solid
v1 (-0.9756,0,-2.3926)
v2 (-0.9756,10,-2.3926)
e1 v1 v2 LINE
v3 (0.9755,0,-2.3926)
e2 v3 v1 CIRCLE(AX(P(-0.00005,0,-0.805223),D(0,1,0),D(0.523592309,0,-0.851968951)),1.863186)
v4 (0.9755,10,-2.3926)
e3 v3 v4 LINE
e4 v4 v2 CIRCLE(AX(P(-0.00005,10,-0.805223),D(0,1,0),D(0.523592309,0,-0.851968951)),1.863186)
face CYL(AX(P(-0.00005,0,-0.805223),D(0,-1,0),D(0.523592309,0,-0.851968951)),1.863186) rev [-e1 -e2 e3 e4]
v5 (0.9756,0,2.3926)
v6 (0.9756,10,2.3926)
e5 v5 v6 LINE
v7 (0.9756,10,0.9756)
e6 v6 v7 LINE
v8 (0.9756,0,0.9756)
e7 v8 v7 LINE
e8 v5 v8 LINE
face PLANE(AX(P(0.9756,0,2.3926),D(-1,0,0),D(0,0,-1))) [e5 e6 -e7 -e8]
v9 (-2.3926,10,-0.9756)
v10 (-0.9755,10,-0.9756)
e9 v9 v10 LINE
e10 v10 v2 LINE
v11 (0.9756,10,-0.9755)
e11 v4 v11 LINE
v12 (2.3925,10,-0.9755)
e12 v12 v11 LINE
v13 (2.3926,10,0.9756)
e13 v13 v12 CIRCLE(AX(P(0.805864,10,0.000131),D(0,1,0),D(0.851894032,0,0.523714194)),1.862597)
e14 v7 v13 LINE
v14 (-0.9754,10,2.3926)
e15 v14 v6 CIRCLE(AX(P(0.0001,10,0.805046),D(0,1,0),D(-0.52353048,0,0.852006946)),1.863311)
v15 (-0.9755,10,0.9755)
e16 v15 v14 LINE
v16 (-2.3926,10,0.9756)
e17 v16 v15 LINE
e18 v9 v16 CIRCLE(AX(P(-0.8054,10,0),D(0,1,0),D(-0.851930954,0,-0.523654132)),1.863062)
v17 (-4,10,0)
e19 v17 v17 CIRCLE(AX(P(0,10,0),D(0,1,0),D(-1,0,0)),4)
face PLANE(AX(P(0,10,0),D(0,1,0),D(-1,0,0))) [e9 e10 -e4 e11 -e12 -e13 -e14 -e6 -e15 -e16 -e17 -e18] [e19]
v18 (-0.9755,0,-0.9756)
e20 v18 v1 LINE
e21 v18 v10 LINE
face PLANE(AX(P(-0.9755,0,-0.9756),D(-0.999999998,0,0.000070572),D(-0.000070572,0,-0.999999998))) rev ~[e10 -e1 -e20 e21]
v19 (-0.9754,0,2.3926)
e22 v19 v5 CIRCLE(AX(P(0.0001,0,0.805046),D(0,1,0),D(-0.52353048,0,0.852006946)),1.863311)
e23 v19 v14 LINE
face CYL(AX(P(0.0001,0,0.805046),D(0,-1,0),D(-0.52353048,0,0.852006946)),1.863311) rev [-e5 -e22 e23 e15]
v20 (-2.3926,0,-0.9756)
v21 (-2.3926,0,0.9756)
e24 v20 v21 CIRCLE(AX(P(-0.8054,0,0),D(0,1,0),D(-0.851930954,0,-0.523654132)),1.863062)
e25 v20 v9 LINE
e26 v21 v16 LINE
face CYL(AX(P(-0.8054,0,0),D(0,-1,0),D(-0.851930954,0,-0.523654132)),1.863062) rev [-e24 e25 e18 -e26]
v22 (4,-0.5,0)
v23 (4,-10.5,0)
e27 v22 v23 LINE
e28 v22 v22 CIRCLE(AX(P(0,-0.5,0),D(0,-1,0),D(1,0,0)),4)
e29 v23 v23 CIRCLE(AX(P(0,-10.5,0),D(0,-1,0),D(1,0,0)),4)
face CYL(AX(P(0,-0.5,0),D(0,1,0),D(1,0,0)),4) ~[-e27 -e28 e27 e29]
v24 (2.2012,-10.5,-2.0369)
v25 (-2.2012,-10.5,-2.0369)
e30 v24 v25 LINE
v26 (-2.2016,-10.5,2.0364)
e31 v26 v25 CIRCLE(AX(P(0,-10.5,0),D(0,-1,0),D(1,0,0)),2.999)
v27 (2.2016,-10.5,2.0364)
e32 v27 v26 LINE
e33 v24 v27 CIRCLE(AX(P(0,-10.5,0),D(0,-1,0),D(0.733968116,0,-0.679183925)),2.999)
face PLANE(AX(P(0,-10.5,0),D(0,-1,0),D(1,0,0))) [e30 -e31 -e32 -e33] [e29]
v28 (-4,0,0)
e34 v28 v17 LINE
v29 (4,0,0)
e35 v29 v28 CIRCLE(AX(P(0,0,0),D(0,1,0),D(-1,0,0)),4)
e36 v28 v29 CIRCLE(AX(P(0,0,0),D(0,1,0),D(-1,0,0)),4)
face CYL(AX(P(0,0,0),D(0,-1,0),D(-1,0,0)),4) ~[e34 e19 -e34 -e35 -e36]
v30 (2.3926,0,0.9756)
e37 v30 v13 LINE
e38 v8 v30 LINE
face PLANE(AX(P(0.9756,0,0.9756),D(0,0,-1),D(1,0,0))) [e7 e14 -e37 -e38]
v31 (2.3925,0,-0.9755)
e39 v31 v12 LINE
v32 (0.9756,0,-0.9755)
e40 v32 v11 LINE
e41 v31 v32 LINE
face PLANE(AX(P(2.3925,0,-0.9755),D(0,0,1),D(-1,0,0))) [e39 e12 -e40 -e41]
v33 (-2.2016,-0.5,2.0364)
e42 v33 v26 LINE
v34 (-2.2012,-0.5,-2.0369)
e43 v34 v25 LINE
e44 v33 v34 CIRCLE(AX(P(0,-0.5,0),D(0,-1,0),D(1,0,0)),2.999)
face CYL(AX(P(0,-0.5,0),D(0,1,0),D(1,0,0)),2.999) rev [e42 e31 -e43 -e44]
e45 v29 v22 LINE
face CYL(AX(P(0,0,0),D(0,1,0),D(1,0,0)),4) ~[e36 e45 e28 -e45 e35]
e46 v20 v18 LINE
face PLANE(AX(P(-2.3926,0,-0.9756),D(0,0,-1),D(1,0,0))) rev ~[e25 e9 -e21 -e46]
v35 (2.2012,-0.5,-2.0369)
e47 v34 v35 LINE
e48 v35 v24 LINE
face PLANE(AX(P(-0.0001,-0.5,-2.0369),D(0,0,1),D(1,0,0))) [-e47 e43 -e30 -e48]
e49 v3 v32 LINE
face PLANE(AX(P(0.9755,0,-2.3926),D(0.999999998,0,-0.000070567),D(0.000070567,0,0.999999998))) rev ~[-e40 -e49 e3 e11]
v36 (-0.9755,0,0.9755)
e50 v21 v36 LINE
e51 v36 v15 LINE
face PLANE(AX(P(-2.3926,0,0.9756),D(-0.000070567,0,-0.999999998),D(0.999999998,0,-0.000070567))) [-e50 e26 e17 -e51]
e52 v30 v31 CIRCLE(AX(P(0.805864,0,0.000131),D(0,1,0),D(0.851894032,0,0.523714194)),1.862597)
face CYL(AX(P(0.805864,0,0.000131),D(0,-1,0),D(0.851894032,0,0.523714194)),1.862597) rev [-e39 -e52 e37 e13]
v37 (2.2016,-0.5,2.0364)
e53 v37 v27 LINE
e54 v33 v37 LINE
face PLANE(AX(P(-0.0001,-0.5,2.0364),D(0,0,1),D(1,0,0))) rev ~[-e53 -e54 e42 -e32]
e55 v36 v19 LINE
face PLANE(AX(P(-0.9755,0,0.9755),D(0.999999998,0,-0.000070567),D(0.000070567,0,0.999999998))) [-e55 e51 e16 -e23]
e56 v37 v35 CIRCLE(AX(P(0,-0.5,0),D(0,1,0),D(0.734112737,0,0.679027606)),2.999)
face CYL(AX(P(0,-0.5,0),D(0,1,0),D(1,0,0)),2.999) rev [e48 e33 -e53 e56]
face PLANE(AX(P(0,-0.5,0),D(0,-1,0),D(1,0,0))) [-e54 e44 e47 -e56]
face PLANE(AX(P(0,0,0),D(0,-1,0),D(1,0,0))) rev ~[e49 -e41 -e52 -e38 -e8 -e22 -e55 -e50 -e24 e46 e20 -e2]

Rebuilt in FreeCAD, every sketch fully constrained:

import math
import FreeCAD as App
import Part
import Sketcher

V = App.Vector

doc = App.newDocument("Part")
body = doc.addObject("PartDesign::Body", "Body")

# Sketch on XZ plane
sketch1 = body.newObject("Sketcher::SketchObject", "Sketch")
sketch1.AttachmentSupport = (doc.getObject("XZ_Plane"), [""])
sketch1.MapMode = "FlatFace"
sketch1.addGeometry([
    Part.Circle(V(0, 0, 0), V(0, 0, 1), 4),  # 0
    Part.ArcOfCircle(Part.Circle(V(-0.8054, 0, 0), V(0, 0, 1), 1.863062), math.radians(148.422316), math.radians(211.577684)),  # 1
    Part.LineSegment(V(-2.3926, -0.9756, 0), V(-0.9755, -0.9756, 0)),  # 2
    Part.LineSegment(V(-0.9755, -0.9756, 0), V(-0.9756, -2.3926, 0)),  # 3
    Part.ArcOfCircle(Part.Circle(V(0, -0.8054, 0), V(0, 0, 1), 1.863009), math.radians(-121.577684), math.radians(-58.424936)),  # 4
    Part.LineSegment(V(0.9755, -2.3926, 0), V(0.9756, -0.9755, 0)),  # 5
    Part.LineSegment(V(0.9756, -0.9755, 0), V(2.3925, -0.9755, 0)),  # 6
    Part.ArcOfCircle(Part.Circle(V(0.8054, 0, 0), V(0, 0, 1), 1.863062), math.radians(-31.576675), math.radians(31.577684)),  # 7
    Part.LineSegment(V(2.3926, 0.9756, 0), V(0.9756, 0.9756, 0)),  # 8
    Part.LineSegment(V(0.9756, 0.9756, 0), V(0.9756, 2.3926, 0)),  # 9
    Part.ArcOfCircle(Part.Circle(V(0, 0.8054, 0), V(0, 0, 1), 1.862957), math.radians(58.422316), math.radians(121.572444)),  # 10
    Part.LineSegment(V(-0.9754, 2.3926, 0), V(-0.9755, 0.9755, 0)),  # 11
    Part.LineSegment(V(-0.9755, 0.9755, 0), V(-2.3926, 0.9756, 0)),  # 12
], False)
sketch1.addConstraint([
    Sketcher.Constraint("Coincident", 1, 2, 2, 1),
    Sketcher.Constraint("Coincident", 2, 2, 3, 1),
    Sketcher.Constraint("Coincident", 3, 2, 4, 1),
    Sketcher.Constraint("Coincident", 4, 2, 5, 1),
    Sketcher.Constraint("Coincident", 5, 2, 6, 1),
    Sketcher.Constraint("Coincident", 6, 2, 7, 1),
    Sketcher.Constraint("Coincident", 7, 2, 8, 1),
    Sketcher.Constraint("Coincident", 8, 2, 9, 1),
    Sketcher.Constraint("Coincident", 9, 2, 10, 1),
    Sketcher.Constraint("Coincident", 10, 2, 11, 1),
    Sketcher.Constraint("Coincident", 11, 2, 12, 1),
    Sketcher.Constraint("Coincident", 12, 2, 1, 1),
    Sketcher.Constraint("Horizontal", 2),
    Sketcher.Constraint("Vertical", 3),
    Sketcher.Constraint("Vertical", 5),
    Sketcher.Constraint("Horizontal", 6),
    Sketcher.Constraint("Horizontal", 8),
    Sketcher.Constraint("Vertical", 9),
    Sketcher.Constraint("Vertical", 11),
    Sketcher.Constraint("Horizontal", 12),
    Sketcher.Constraint("Coincident", 0, 3, -1, 1),
    Sketcher.Constraint("Equal", 1, 4),
    Sketcher.Constraint("Equal", 4, 7),
    Sketcher.Constraint("Equal", 7, 10),
    Sketcher.Constraint("Symmetric", 1, 3, 7, 3, -1, 1),
    Sketcher.Constraint("Symmetric", 4, 3, 10, 3, -1, 1),
    Sketcher.Constraint("Symmetric", 2, 2, 8, 2, -1, 1),
    Sketcher.Constraint("Symmetric", 5, 2, 11, 2, -1, 1),
    Sketcher.Constraint("Symmetric", 3, 2, 4, 2, -2),
    Sketcher.Constraint("Symmetric", 1, 2, 6, 2, -2),
    Sketcher.Constraint("Equal", 12, 3),
    Sketcher.Constraint("Diameter", 0, 8.0),
    Sketcher.Constraint("Radius", 1, 1.863),
    Sketcher.Constraint("DistanceX", 2, 1, 2, 2, 1.417),
    Sketcher.Constraint("DistanceX", 3, 2, 4, 2, 1.951),
    Sketcher.Constraint("DistanceY", 6, 2, 7, 2, 1.951),
])
pad1 = body.newObject("PartDesign::Pad", "Pad")
pad1.Profile = sketch1
pad1.Length = 10
pad1.Reversed = True

# Sketch on XZ plane
sketch2 = body.newObject("Sketcher::SketchObject", "Sketch001")
sketch2.AttachmentSupport = (doc.getObject("XZ_Plane"), [""])
sketch2.MapMode = "FlatFace"
sketch2.addGeometry(Part.Circle(V(0, 0, 0), V(0, 0, 1), 4), False)
sketch2.addConstraint([
    Sketcher.Constraint("Coincident", 0, 3, -1, 1),
    Sketcher.Constraint("Diameter", 0, 8.0),
])
pad2 = body.newObject("PartDesign::Pad", "Pad001")
pad2.Profile = sketch2
pad2.Length = 0.5

# Sketch on XZ plane
sketch3 = body.newObject("Sketcher::SketchObject", "Sketch002")
sketch3.AttachmentSupport = (doc.getObject("XZ_Plane"), [""])
sketch3.MapMode = "FlatFace"
sketch3.AttachmentOffset = App.Placement(V(0, 0, 0.5), App.Rotation())
sketch3.addGeometry([
    Part.Circle(V(0, 0, 0), V(0, 0, 1), 4),  # 0
    Part.ArcOfCircle(Part.Circle(V(0, 0, 0), V(0, 0, 1), 2.999), math.radians(-42.779905), math.radians(42.767703)),  # 1
    Part.LineSegment(V(2.2012, -2.0369, 0), V(-2.2012, -2.0369, 0)),  # 2
    Part.ArcOfCircle(Part.Circle(V(0, 0, 0), V(0, 0, 1), 2.999), math.radians(137.232297), math.radians(222.779905)),  # 3
    Part.LineSegment(V(-2.2016, 2.0364, 0), V(2.2016, 2.0364, 0)),  # 4
], False)
sketch3.addConstraint([
    Sketcher.Constraint("Coincident", 1, 1, 2, 1),
    Sketcher.Constraint("Coincident", 2, 2, 3, 2),
    Sketcher.Constraint("Coincident", 3, 1, 4, 1),
    Sketcher.Constraint("Coincident", 4, 2, 1, 2),
    Sketcher.Constraint("Horizontal", 2),
    Sketcher.Constraint("Horizontal", 4),
    Sketcher.Constraint("Coincident", 0, 3, -1, 1),
    Sketcher.Constraint("Coincident", 1, 3, -1, 1),
    Sketcher.Constraint("Coincident", 3, 3, -1, 1),
    Sketcher.Constraint("Equal", 1, 3),
    Sketcher.Constraint("Diameter", 0, 8.0),
    Sketcher.Constraint("Radius", 1, 2.999),
    Sketcher.Constraint("DistanceY", 2, 2, -1, 1, 2.037),
    Sketcher.Constraint("DistanceX", 3, 1, -1, 1, 2.2016),
])
pad3 = body.newObject("PartDesign::Pad", "Pad002")
pad3.Profile = sketch3
pad3.Length = 10

doc.recompute()
